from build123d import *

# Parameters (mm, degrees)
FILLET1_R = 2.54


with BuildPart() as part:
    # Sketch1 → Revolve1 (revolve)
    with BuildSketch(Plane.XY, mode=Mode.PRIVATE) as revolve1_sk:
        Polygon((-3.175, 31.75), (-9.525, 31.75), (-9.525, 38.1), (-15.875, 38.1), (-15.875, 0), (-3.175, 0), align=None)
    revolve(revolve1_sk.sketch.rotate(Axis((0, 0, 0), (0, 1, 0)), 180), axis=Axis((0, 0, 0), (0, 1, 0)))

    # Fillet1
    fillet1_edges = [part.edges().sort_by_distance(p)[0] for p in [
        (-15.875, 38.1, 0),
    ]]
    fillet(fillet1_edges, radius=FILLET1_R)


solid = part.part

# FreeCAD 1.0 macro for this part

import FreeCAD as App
import Part
import Sketcher
from FreeCAD import Vector
Q = App.Units.Quantity


def edges_at(feature, points):
    """Names of the edges that pass closest to the given points."""
    edges = feature.Shape.Edges
    near = lambda p: min(range(len(edges)), key=lambda i: edges[i].distToShape(Part.Vertex(*p))[0])
    return sorted({f"Edge{near(p) + 1}" for p in points})

doc = App.newDocument("Part")
params = doc.addObject("Spreadsheet::Sheet", "Params")
for row, (alias, value) in enumerate([
    ("sketch1_width", "0.5 in"),
    ("sketch1_height", "1.5 in"),
    ("revolution_angle", "360 deg"),
    ("fillet_radius", "0.1 in"),
], start=1):
    params.set(f"A{row}", alias)
    params.set(f"B{row}", "=" + value)
    params.setAlias(f"B{row}", alias)

body = doc.addObject("PartDesign::Body", "Body")

# Sketch on XY plane
sketch1 = body.newObject("Sketcher::SketchObject", "Sketch")
sketch1.AttachmentSupport = (doc.getObject("XY_Plane"), [""])
sketch1.MapMode = "FlatFace"
sketch1.addGeometry([
    Part.LineSegment(Vector(-3, 32, 0), Vector(-10, 32, 0)),  # 0
    Part.LineSegment(Vector(-10, 32, 0), Vector(-10, 38, 0)),  # 1
    Part.LineSegment(Vector(-10, 38, 0), Vector(-16, 38, 0)),  # 2
    Part.LineSegment(Vector(-16, 38, 0), Vector(-16, 0, 0)),  # 3
    Part.LineSegment(Vector(-16, 0, 0), Vector(-3, 0, 0)),  # 4
    Part.LineSegment(Vector(-3, 0, 0), Vector(-3, 32, 0)),  # 5
], False)
sketch1.addConstraint([
    Sketcher.Constraint("Coincident", 0, 2, 1, 1),
    Sketcher.Constraint("Coincident", 1, 2, 2, 1),
    Sketcher.Constraint("Coincident", 2, 2, 3, 1),
    Sketcher.Constraint("Coincident", 3, 2, 4, 1),
    Sketcher.Constraint("Coincident", 4, 2, 5, 1),
    Sketcher.Constraint("Coincident", 5, 2, 0, 1),
    Sketcher.Constraint("Horizontal", 0),
    Sketcher.Constraint("Vertical", 1),
    Sketcher.Constraint("Horizontal", 2),
    Sketcher.Constraint("Vertical", 3),
    Sketcher.Constraint("Horizontal", 4),
    Sketcher.Constraint("Vertical", 5),
    Sketcher.Constraint("PointOnObject", 3, 2, -1),
    Sketcher.Constraint("Equal", 0, 2),
    Sketcher.Constraint("Equal", 2, 1),
    Sketcher.Constraint("DistanceX", 4, 1, 4, 2, Q("0.5 in")),
    Sketcher.Constraint("DistanceY", 3, 2, 3, 1, Q("1.5 in")),
    Sketcher.Constraint("DistanceX", 0, 2, -1, 1, Q("0.375 in")),
])
sketch1.setExpression("Constraints[15]", "Params.sketch1_width")
sketch1.setExpression("Constraints[16]", "Params.sketch1_height")
revolution = body.newObject("PartDesign::Revolution", "Revolution")
revolution.Profile = sketch1
revolution.ReferenceAxis = (sketch1, ["V_Axis"])
revolution.setExpression("Angle", "Params.revolution_angle")
doc.recompute()

fillet = body.newObject("PartDesign::Fillet", "Fillet")
fillet.Base = (revolution, edges_at(revolution, [(-15.875, 38.1, 0)]))
fillet.setExpression("Radius", "Params.fillet_radius")

doc.recompute()
